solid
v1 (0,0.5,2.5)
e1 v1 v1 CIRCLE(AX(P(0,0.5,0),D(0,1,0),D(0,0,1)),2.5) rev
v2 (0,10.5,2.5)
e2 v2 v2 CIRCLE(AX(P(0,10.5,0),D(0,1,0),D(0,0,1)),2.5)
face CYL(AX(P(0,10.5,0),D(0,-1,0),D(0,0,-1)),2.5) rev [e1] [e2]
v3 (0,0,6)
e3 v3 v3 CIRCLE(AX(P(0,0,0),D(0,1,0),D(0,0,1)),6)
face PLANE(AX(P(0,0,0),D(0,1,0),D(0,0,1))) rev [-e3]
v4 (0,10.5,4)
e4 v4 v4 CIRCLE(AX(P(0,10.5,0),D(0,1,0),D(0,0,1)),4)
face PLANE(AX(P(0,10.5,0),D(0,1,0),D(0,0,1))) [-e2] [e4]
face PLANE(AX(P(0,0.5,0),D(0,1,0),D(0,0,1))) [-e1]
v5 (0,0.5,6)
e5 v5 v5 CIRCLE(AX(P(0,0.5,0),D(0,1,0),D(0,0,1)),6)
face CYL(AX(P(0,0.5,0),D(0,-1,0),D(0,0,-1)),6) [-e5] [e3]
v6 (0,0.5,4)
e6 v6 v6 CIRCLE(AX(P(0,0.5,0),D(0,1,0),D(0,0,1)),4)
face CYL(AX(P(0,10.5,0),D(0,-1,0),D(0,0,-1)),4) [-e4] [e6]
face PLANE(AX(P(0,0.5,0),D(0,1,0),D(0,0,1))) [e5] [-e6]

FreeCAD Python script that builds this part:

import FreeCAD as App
import Part
import Sketcher
Q = App.Units.Quantity

doc = App.newDocument("Part")
body = doc.addObject("PartDesign::Body", "Body")

# Sketch on XZ plane
sketch1 = body.newObject("Sketcher::SketchObject", "Sketch")
sketch1.AttachmentSupport = (doc.getObject("XZ_Plane"), [""])
sketch1.MapMode = "FlatFace"
sketch1.addGeometry(Part.Circle(App.Vector(0, 0, 0), App.Vector(0, 0, 1), 6), False)
sketch1.addConstraint([
    Sketcher.Constraint("Coincident", 0, 3, -1, 1),
    Sketcher.Constraint("Diameter", 0, Q("12 mm")),
])
pad1 = body.newObject("PartDesign::Pad", "Pad")
pad1.Profile = sketch1
pad1.Length = 0.5
pad1.Reversed = True

# Sketch on XZ plane
sketch2 = body.newObject("Sketcher::SketchObject", "Sketch001")
sketch2.AttachmentSupport = (doc.getObject("XZ_Plane"), [""])
sketch2.MapMode = "FlatFace"
sketch2.AttachmentOffset = App.Placement(App.Vector(0, 0, -0.5), App.Rotation())
sketch2.addGeometry([
    Part.Circle(App.Vector(0, 0, 0), App.Vector(0, 0, 1), 4),
    Part.Circle(App.Vector(0, 0, 0), App.Vector(0, 0, 1), 2.5),
], False)
sketch2.addConstraint([
    Sketcher.Constraint("Coincident", 0, 3, -1, 1),
    Sketcher.Constraint("Coincident", 1, 3, -1, 1),
    Sketcher.Constraint("Diameter", 0, Q("8 mm")),
    Sketcher.Constraint("Diameter", 1, Q("5 mm")),
])
pad2 = body.newObject("PartDesign::Pad", "Pad001")
pad2.Profile = sketch2
pad2.Length = 10
pad2.Reversed = True

doc.recompute()
